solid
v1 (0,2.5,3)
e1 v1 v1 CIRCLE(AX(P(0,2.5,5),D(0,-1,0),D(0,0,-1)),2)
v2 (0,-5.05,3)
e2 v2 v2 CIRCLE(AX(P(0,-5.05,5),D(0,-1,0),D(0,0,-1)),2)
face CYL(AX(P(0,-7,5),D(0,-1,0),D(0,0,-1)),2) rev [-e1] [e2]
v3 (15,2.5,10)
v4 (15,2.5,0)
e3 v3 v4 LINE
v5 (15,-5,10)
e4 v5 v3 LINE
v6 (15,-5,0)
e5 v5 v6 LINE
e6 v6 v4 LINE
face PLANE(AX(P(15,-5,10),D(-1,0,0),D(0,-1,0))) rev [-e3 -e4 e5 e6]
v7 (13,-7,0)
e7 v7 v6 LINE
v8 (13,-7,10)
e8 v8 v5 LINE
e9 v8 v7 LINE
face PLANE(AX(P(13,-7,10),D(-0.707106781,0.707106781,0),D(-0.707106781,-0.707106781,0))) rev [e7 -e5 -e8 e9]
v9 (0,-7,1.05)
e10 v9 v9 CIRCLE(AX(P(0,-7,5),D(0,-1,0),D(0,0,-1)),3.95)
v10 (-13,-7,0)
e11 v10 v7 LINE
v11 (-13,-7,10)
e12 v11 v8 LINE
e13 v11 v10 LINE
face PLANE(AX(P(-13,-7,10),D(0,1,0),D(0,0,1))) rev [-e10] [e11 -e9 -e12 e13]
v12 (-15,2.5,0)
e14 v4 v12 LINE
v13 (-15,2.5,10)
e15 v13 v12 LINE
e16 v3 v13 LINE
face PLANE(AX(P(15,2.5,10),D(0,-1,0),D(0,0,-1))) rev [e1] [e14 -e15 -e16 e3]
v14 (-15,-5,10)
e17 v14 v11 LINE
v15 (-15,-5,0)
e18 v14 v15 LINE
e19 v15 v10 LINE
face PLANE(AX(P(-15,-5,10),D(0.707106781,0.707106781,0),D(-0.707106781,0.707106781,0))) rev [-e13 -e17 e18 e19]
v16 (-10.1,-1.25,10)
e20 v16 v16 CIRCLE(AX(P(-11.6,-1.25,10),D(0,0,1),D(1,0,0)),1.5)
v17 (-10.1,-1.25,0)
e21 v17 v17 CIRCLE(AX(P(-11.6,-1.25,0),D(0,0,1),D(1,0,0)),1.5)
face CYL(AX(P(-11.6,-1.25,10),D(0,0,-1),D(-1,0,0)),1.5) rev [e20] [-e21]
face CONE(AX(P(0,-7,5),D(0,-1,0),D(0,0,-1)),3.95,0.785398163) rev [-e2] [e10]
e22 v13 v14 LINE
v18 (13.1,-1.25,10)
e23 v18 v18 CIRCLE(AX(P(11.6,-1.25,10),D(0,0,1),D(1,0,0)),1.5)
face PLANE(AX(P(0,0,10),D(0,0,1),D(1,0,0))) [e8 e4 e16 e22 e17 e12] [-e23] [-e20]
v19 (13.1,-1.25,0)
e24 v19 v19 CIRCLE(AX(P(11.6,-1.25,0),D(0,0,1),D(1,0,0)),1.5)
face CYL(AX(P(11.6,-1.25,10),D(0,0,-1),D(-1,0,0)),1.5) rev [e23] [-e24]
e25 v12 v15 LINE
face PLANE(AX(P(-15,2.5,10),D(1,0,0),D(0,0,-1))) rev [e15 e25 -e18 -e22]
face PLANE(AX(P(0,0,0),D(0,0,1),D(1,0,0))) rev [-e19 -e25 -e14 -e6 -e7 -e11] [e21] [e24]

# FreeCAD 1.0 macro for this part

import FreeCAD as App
import Part
import Sketcher
from FreeCAD import Vector


def add_polygon(sketch, points):
    """Adds a closed chain of lines whose ends are joined by coincident constraints."""
    first, n = sketch.GeometryCount, len(points)
    for a, b in zip(points, points[1:] + points[:1]):
        sketch.addGeometry(Part.LineSegment(App.Vector(*a, 0), App.Vector(*b, 0)), False)
    for i in range(n):
        sketch.addConstraint(Sketcher.Constraint("Coincident", first + i, 2, first + (i + 1) % n, 1))

doc = App.newDocument("Part")
body = doc.addObject("PartDesign::Body", "Body")

# Sketch on XY plane
sketch1 = body.newObject("Sketcher::SketchObject", "Sketch")
sketch1.AttachmentSupport = (doc.getObject("XY_Plane"), [""])
sketch1.MapMode = "FlatFace"
add_polygon(sketch1, [(-15, 2.5), (-15, -5), (-13, -7), (13, -7), (15, -5), (15, 2.5)])  # lines 0-5
sketch1.addGeometry(Part.Circle(Vector(-11.6, -1.2, 0), Vector(0, 0, 1), 1.5), False)  # 6
sketch1.addGeometry(Part.Circle(Vector(11.6, -1.2, 0), Vector(0, 0, 1), 1.5), False)  # 7
sketch1.addConstraint([
    Sketcher.Constraint("Vertical", 0),
    Sketcher.Constraint("Horizontal", 2),
    Sketcher.Constraint("Vertical", 4),
    Sketcher.Constraint("Horizontal", 5),
    Sketcher.Constraint("Equal", 6, 7),
    Sketcher.Constraint("Symmetric", 6, 3, 7, 3, -2),
    Sketcher.Constraint("Symmetric", 0, 2, 3, 2, -2),
    Sketcher.Constraint("Perpendicular", 1, 3),
    Sketcher.Constraint("Equal", 1, 3),
    Sketcher.Constraint("Diameter", 6, 3.0),
    Sketcher.Constraint("DistanceX", 2, 1, 2, 2, 26.0),
    Sketcher.Constraint("DistanceX", 5, 2, 5, 1, 30.0),
    Sketcher.Constraint("DistanceY", 0, 2, 0, 1, 7.5),
    Sketcher.Constraint("DistanceY", 0, 2, -1, 1, 5.0),
    Sketcher.Constraint("DistanceX", 6, 3, -1, 1, 11.6),
    Sketcher.Constraint("DistanceY", 6, 3, -1, 1, 1.25),
])
pad1 = body.newObject("PartDesign::Pad", "Pad")
pad1.Profile = sketch1
pad1.Length = 10

# Sketch on XZ plane
sketch2 = body.newObject("Sketcher::SketchObject", "Sketch001")
sketch2.AttachmentSupport = (doc.getObject("XZ_Plane"), [""])
sketch2.MapMode = "FlatFace"
sketch2.AttachmentOffset = App.Placement(Vector(0, 0, 7), App.Rotation())
sketch2.addGeometry(Part.Circle(Vector(0, 5, 0), Vector(0, 0, 1), 2), False)
sketch2.addConstraint([
    Sketcher.Constraint("PointOnObject", 0, 3, -2),
    Sketcher.Constraint("Diameter", 0, 4.0),
    Sketcher.Constraint("DistanceY", -1, 1, 0, 3, 5.0),
])
doc.recompute()
hole = body.newObject("PartDesign::Hole", "Hole")
hole.Profile = sketch2
hole.ThreadType = "None"
hole.Diameter = 4
hole.DepthType = "Dimension"
hole.Depth = 19
hole.DrillPoint = "Angled"
hole.DrillPointAngle = 118
hole.HoleCutType = "Countersink"
hole.HoleCutDiameter = 7.9
hole.HoleCutCountersinkAngle = 90

doc.recompute()
